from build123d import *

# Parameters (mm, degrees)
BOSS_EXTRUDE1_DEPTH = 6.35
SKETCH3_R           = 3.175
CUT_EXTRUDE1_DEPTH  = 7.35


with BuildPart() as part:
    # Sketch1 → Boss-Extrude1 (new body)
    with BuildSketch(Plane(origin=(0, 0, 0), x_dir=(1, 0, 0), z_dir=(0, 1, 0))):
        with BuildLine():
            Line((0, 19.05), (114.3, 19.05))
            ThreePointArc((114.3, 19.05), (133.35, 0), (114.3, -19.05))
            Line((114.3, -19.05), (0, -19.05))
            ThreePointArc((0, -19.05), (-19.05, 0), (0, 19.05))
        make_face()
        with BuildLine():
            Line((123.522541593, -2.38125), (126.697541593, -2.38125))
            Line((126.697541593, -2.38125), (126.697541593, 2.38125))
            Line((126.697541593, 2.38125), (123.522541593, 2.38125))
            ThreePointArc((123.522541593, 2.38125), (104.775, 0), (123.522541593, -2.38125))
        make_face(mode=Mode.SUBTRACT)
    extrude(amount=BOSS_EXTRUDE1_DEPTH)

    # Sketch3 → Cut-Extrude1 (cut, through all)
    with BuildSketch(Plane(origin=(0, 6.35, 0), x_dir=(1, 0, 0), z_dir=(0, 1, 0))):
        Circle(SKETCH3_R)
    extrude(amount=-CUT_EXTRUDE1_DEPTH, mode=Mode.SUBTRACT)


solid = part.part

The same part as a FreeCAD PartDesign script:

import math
import FreeCAD as App
import Part
import Sketcher
from FreeCAD import Vector
Q = App.Units.Quantity

doc = App.newDocument("Part")
params = doc.addObject("Spreadsheet::Sheet", "Params")
for row, (alias, value) in enumerate([
    ("sketch1_radius", "0.75 in"),
    ("sketch1_width", "4.5 in"),
    ("sketch1_radius2", "0.375 in"),
    ("sketch1_width2", "0.125 in"),
    ("sketch1_height", "0.1875 in"),
    ("pad1_length", "0.25 in"),
    ("sketch2_diameter", "0.25 in"),
], start=1):
    params.set(f"A{row}", alias)
    params.set(f"B{row}", "=" + value)
    params.setAlias(f"B{row}", alias)

body = doc.addObject("PartDesign::Body", "Body")

sketch1 = body.newObject("Sketcher::SketchObject", "Sketch")
sketch1.AttachmentSupport = (doc.getObject("XZ_Plane"), [""])
sketch1.MapMode = "FlatFace"
sketch1.addGeometry([
    Part.LineSegment(Vector(114.3, -19.1, 0), Vector(0, -19.1, 0)),
    Part.ArcOfCircle(Part.Circle(Vector(0, 0, 0), Vector(0, 0, 1), 19.1), math.radians(90), math.radians(270)),
    Part.LineSegment(Vector(0, 19.1, 0), Vector(114.3, 19.1, 0)),
    Part.ArcOfCircle(Part.Circle(Vector(114.3, 0, 0), Vector(0, 0, 1), 19.1), math.radians(-90), math.radians(90)),
    Part.ArcOfCircle(Part.Circle(Vector(114.3, 0, 0), Vector(0, 0, 1), 9.5), math.radians(14), math.radians(346)),
    Part.LineSegment(Vector(123.5, -2.4, 0), Vector(126.7, -2.4, 0)),
    Part.LineSegment(Vector(126.7, -2.4, 0), Vector(126.7, 2.4, 0)),
    Part.LineSegment(Vector(126.7, 2.4, 0), Vector(123.5, 2.4, 0)),
], False)
sketch1.addConstraint([
    Sketcher.Constraint("Tangent", 0, 2, 1, 2),
    Sketcher.Constraint("Tangent", 1, 1, 2, 1),
    Sketcher.Constraint("Tangent", 2, 2, 3, 2),
    Sketcher.Constraint("Tangent", 3, 1, 0, 1),
    Sketcher.Constraint("Coincident", 4, 2, 5, 1),
    Sketcher.Constraint("Coincident", 5, 2, 6, 1),
    Sketcher.Constraint("Coincident", 6, 2, 7, 1),
    Sketcher.Constraint("Coincident", 7, 2, 4, 1),
    Sketcher.Constraint("Horizontal", 0),
    Sketcher.Constraint("Horizontal", 2),
    Sketcher.Constraint("Horizontal", 5),
    Sketcher.Constraint("Vertical", 6),
    Sketcher.Constraint("Horizontal", 7),
    Sketcher.Constraint("Coincident", 1, 3, -1, 1),
    Sketcher.Constraint("Coincident", 4, 3, 3, 3),
    Sketcher.Constraint("Vertical", 4, 2, 7, 2),
    Sketcher.Constraint("Radius", 1, Q("0.75 in")),
    Sketcher.Constraint("DistanceX", 0, 2, 0, 1, Q("4.5 in")),
    Sketcher.Constraint("Radius", 4, Q("0.375 in")),
    Sketcher.Constraint("DistanceX", 5, 1, 5, 2, Q("0.125 in")),
    Sketcher.Constraint("DistanceY", 6, 1, 6, 2, Q("0.1875 in")),
])
sketch1.setExpression("Constraints[16]", "Params.sketch1_radius")
sketch1.setExpression("Constraints[17]", "Params.sketch1_width")
sketch1.setExpression("Constraints[18]", "Params.sketch1_radius2")
sketch1.setExpression("Constraints[19]", "Params.sketch1_width2")
sketch1.setExpression("Constraints[20]", "Params.sketch1_height")
pad1 = body.newObject("PartDesign::Pad", "Pad")
pad1.Profile = sketch1
pad1.setExpression("Length", "Params.pad1_length")
pad1.Reversed = True

sketch2 = body.newObject("Sketcher::SketchObject", "Sketch001")
sketch2.AttachmentSupport = (doc.getObject("XZ_Plane"), [""])
sketch2.MapMode = "FlatFace"
sketch2.AttachmentOffset = App.Placement(Vector(0, 0, -0.25 * 25.4), App.Rotation())
sketch2.addGeometry(Part.Circle(Vector(0, 0, 0), Vector(0, 0, 1), 3.2), False)
sketch2.addConstraint([
    Sketcher.Constraint("Coincident", 0, 3, -1, 1),
    Sketcher.Constraint("Diameter", 0, Q("0.25 in")),
])
sketch2.setExpression("Constraints[1]", "Params.sketch2_diameter")
pocket1 = body.newObject("PartDesign::Pocket", "Pocket")
pocket1.Profile = sketch2
pocket1.Type = "ThroughAll"
pocket1.Reversed = True

doc.recompute()
